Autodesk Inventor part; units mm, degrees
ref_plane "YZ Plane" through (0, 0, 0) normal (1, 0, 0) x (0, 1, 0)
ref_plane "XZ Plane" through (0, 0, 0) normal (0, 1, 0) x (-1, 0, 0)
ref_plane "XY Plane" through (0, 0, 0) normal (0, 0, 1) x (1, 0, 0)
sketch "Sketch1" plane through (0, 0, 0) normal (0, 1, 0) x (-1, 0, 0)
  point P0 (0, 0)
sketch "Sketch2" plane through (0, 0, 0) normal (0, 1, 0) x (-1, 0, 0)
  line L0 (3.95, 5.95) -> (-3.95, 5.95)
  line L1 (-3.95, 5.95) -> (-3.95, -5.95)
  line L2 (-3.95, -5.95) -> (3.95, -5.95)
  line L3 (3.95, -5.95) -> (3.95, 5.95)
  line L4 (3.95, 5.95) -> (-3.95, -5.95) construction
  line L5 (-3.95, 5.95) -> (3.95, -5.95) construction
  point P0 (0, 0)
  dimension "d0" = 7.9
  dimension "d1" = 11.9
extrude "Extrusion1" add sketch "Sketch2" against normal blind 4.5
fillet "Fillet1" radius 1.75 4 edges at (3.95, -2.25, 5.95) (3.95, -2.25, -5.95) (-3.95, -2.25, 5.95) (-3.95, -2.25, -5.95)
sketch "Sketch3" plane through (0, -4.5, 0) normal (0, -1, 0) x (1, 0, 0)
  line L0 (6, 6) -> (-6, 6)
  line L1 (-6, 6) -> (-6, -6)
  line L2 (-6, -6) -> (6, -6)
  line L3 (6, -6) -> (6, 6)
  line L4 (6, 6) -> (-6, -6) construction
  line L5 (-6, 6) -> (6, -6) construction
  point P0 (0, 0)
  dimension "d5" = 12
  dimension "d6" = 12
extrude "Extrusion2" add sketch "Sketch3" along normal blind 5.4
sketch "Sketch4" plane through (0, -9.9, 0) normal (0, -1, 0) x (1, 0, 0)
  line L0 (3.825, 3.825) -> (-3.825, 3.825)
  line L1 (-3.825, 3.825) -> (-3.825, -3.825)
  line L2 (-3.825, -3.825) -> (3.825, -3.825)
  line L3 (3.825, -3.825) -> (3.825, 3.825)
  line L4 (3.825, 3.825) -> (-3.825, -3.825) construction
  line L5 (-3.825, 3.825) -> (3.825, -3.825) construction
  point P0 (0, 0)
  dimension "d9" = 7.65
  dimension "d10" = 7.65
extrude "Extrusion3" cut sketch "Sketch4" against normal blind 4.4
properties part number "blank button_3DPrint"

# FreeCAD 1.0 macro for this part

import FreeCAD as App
import Part
import Sketcher

V = App.Vector


def edges_at(feature, points):
    """Names of the edges that pass closest to the given points."""
    edges = feature.Shape.Edges
    near = lambda p: min(range(len(edges)), key=lambda i: edges[i].distToShape(Part.Vertex(*p))[0])
    return sorted({f"Edge{near(p) + 1}" for p in points})

doc = App.newDocument("Part")
body = doc.addObject("PartDesign::Body", "Body")

sketch1 = doc.addObject("Sketcher::SketchObject", "Sketch")
body.addObject(sketch1)
sketch1.AttachmentSupport = (doc.XZ_Plane, [""])
sketch1.MapMode = "FlatFace"
sketch1.addGeometry(Part.LineSegment(V(-4, -6, 0), V(-4, 6, 0)), False)
sketch1.addGeometry(Part.LineSegment(V(-4, 6, 0), V(4, 6, 0)), False)
sketch1.addGeometry(Part.LineSegment(V(4, 6, 0), V(4, -6, 0)), False)
sketch1.addGeometry(Part.LineSegment(V(4, -6, 0), V(-4, -6, 0)), False)
sketch1.addConstraint(Sketcher.Constraint("Coincident", 0, 2, 1, 1))
sketch1.addConstraint(Sketcher.Constraint("Coincident", 1, 2, 2, 1))
sketch1.addConstraint(Sketcher.Constraint("Coincident", 2, 2, 3, 1))
sketch1.addConstraint(Sketcher.Constraint("Coincident", 3, 2, 0, 1))
sketch1.addConstraint(Sketcher.Constraint("Vertical", 0))
sketch1.addConstraint(Sketcher.Constraint("Horizontal", 1))
sketch1.addConstraint(Sketcher.Constraint("Vertical", 2))
sketch1.addConstraint(Sketcher.Constraint("Horizontal", 3))
sketch1.addConstraint(Sketcher.Constraint("Symmetric", 0, 2, 2, 2, -1, 1))
sketch1.addConstraint(Sketcher.Constraint("DistanceX", 1, 1, 1, 2, 7.9))
sketch1.addConstraint(Sketcher.Constraint("DistanceY", 0, 1, 0, 2, 11.9))
pad1 = doc.addObject("PartDesign::Pad", "Pad")
body.addObject(pad1)
pad1.Profile = sketch1
pad1.Length = 4.5
doc.recompute()

fillet = doc.addObject("PartDesign::Fillet", "Fillet")
body.addObject(fillet)
fillet.Base = (pad1, edges_at(pad1, [
    (3.95, -2.25, 5.95),
    (3.95, -2.25, -5.95),
    (-3.95, -2.25, 5.95),
    (-3.95, -2.25, -5.95),
]))
fillet.Radius = 1.75

sketch2 = doc.addObject("Sketcher::SketchObject", "Sketch001")
body.addObject(sketch2)
sketch2.AttachmentSupport = (doc.XZ_Plane, [""])
sketch2.MapMode = "FlatFace"
sketch2.AttachmentOffset = App.Placement(V(0, 0, 4.5), App.Rotation())
sketch2.addGeometry(Part.LineSegment(V(6, -6, 0), V(6, 6, 0)), False)
sketch2.addGeometry(Part.LineSegment(V(6, 6, 0), V(-6, 6, 0)), False)
sketch2.addGeometry(Part.LineSegment(V(-6, 6, 0), V(-6, -6, 0)), False)
sketch2.addGeometry(Part.LineSegment(V(-6, -6, 0), V(6, -6, 0)), False)
sketch2.addConstraint(Sketcher.Constraint("Coincident", 0, 2, 1, 1))
sketch2.addConstraint(Sketcher.Constraint("Coincident", 1, 2, 2, 1))
sketch2.addConstraint(Sketcher.Constraint("Coincident", 2, 2, 3, 1))
sketch2.addConstraint(Sketcher.Constraint("Coincident", 3, 2, 0, 1))
sketch2.addConstraint(Sketcher.Constraint("Vertical", 0))
sketch2.addConstraint(Sketcher.Constraint("Horizontal", 1))
sketch2.addConstraint(Sketcher.Constraint("Vertical", 2))
sketch2.addConstraint(Sketcher.Constraint("Horizontal", 3))
sketch2.addConstraint(Sketcher.Constraint("Symmetric", 0, 2, 2, 2, -1, 1))
sketch2.addConstraint(Sketcher.Constraint("Equal", 3, 0))
sketch2.addConstraint(Sketcher.Constraint("DistanceX", 1, 2, 1, 1, 12.0))
pad2 = doc.addObject("PartDesign::Pad", "Pad001")
body.addObject(pad2)
pad2.Profile = sketch2
pad2.Length = 5.4

sketch3 = doc.addObject("Sketcher::SketchObject", "Sketch002")
body.addObject(sketch3)
sketch3.AttachmentSupport = (doc.XZ_Plane, [""])
sketch3.MapMode = "FlatFace"
sketch3.AttachmentOffset = App.Placement(V(0, 0, 9.9), App.Rotation())
sketch3.addGeometry(Part.LineSegment(V(4, -4, 0), V(4, 4, 0)), False)
sketch3.addGeometry(Part.LineSegment(V(4, 4, 0), V(-4, 4, 0)), False)
sketch3.addGeometry(Part.LineSegment(V(-4, 4, 0), V(-4, -4, 0)), False)
sketch3.addGeometry(Part.LineSegment(V(-4, -4, 0), V(4, -4, 0)), False)
sketch3.addConstraint(Sketcher.Constraint("Coincident", 0, 2, 1, 1))
sketch3.addConstraint(Sketcher.Constraint("Coincident", 1, 2, 2, 1))
sketch3.addConstraint(Sketcher.Constraint("Coincident", 2, 2, 3, 1))
sketch3.addConstraint(Sketcher.Constraint("Coincident", 3, 2, 0, 1))
sketch3.addConstraint(Sketcher.Constraint("Vertical", 0))
sketch3.addConstraint(Sketcher.Constraint("Horizontal", 1))
sketch3.addConstraint(Sketcher.Constraint("Vertical", 2))
sketch3.addConstraint(Sketcher.Constraint("Horizontal", 3))
sketch3.addConstraint(Sketcher.Constraint("Symmetric", 0, 2, 2, 2, -1, 1))
sketch3.addConstraint(Sketcher.Constraint("Equal", 3, 0))
sketch3.addConstraint(Sketcher.Constraint("DistanceX", 1, 2, 1, 1, 7.65))
pocket1 = doc.addObject("PartDesign::Pocket", "Pocket")
body.addObject(pocket1)
pocket1.Profile = sketch3
pocket1.Length = 4.4

doc.recompute()
